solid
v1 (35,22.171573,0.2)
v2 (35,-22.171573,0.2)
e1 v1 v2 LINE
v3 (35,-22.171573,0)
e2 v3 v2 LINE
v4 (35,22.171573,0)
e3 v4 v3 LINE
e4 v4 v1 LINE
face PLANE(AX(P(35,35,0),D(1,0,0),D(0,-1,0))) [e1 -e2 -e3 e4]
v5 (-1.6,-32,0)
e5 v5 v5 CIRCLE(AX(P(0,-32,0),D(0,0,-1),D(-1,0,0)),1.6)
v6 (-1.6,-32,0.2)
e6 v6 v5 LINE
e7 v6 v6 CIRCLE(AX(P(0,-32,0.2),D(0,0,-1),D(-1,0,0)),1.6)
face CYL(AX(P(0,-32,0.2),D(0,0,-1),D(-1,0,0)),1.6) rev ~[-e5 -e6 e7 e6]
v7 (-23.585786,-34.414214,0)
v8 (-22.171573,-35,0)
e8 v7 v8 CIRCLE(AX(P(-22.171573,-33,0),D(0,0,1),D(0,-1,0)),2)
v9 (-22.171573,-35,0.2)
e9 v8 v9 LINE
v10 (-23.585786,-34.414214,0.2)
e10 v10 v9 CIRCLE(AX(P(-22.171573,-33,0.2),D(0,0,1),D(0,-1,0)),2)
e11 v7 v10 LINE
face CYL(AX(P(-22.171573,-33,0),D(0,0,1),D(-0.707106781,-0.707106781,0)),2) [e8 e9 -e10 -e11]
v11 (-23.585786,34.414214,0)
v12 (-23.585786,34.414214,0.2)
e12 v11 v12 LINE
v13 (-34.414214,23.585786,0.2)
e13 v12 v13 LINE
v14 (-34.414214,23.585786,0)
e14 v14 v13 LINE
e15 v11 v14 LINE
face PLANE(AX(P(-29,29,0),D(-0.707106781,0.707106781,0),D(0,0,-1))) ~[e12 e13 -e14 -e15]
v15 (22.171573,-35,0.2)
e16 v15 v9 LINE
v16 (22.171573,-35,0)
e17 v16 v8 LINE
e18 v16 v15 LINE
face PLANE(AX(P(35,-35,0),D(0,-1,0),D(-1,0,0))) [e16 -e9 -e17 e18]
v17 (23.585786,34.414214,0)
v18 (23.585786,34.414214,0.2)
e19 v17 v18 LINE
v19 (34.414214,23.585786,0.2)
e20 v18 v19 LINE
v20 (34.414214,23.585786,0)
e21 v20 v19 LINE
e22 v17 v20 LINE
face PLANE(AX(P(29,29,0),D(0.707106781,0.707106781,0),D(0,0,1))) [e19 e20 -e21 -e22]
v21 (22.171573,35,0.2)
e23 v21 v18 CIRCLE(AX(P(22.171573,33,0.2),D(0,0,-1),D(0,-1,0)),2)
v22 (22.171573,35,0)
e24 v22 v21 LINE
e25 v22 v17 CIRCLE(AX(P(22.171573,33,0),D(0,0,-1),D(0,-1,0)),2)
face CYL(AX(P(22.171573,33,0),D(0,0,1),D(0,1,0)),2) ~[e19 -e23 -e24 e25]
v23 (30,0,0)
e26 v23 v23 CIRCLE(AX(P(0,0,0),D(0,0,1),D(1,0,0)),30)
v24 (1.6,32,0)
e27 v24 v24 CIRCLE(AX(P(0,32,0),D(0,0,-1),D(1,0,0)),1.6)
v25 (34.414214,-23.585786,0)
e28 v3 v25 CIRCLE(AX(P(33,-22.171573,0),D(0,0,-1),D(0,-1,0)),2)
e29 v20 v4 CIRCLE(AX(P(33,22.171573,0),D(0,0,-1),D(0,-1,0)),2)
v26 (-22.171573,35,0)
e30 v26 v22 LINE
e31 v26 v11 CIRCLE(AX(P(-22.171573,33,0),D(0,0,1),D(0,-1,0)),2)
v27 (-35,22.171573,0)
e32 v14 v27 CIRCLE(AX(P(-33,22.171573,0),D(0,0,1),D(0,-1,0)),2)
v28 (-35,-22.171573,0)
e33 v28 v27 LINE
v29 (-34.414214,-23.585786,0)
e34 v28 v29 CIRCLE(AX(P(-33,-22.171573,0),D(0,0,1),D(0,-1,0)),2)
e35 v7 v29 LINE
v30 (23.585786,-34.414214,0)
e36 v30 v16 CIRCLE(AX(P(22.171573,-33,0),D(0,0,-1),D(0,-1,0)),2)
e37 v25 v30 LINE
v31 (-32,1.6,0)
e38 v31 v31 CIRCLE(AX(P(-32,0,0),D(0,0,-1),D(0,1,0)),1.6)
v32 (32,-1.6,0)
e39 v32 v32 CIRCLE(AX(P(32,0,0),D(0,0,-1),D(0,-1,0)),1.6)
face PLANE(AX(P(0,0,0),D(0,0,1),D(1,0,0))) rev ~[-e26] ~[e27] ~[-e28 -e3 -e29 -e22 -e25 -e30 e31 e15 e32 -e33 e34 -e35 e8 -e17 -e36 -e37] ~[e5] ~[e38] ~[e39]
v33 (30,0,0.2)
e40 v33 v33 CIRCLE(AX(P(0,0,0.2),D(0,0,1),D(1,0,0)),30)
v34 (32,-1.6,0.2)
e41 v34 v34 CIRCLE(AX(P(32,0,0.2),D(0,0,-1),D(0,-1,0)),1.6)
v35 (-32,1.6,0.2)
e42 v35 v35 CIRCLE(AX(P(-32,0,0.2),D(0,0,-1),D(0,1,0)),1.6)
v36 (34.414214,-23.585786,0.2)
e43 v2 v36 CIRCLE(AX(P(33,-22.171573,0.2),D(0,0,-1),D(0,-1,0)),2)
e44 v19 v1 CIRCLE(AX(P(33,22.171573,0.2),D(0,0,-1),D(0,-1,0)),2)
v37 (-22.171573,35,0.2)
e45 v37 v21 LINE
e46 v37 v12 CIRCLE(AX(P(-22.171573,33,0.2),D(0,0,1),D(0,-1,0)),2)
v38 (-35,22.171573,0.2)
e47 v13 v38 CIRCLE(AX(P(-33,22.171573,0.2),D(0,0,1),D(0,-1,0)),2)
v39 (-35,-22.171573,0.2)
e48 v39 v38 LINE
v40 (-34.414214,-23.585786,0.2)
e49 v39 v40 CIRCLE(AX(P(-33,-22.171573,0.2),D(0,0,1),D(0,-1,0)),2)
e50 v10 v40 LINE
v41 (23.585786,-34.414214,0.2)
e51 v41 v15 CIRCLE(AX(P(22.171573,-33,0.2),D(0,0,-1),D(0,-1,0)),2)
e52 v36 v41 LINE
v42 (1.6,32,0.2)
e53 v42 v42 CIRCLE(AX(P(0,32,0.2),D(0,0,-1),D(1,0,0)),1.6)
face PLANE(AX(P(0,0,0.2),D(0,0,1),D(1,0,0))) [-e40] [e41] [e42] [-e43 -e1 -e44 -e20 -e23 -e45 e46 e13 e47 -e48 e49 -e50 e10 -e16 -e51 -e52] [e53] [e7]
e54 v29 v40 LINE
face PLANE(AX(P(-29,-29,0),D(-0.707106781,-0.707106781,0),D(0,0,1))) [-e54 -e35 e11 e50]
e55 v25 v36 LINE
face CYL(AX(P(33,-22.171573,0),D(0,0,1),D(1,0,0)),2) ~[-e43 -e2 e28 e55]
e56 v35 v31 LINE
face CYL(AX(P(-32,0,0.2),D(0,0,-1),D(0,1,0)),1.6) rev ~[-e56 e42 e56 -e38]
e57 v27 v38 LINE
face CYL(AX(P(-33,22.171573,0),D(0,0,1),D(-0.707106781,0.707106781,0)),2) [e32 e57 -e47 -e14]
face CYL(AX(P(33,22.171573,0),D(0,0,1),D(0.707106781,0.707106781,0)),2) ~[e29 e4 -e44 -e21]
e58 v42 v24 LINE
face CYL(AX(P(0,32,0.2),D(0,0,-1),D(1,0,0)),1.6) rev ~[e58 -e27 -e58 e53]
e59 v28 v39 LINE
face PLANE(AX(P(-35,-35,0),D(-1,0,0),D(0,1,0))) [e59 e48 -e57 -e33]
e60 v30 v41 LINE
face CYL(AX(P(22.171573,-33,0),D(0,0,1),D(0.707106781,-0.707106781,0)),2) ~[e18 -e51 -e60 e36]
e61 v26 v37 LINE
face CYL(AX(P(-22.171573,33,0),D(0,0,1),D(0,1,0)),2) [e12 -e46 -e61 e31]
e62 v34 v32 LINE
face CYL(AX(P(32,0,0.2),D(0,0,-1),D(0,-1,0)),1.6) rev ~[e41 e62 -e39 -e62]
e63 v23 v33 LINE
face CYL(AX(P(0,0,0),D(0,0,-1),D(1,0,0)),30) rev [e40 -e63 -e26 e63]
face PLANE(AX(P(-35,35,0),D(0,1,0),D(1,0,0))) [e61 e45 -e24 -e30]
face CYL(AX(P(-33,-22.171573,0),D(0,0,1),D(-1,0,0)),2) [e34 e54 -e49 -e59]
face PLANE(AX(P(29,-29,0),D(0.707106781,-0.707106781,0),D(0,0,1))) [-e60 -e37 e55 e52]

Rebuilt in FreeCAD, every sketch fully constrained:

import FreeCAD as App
import Part
import Sketcher

V = App.Vector
Q = App.Units.Quantity


def edges_at(feature, points):
    """Names of the edges that pass closest to the given points."""
    edges = feature.Shape.Edges
    near = lambda p: min(range(len(edges)), key=lambda i: edges[i].distToShape(Part.Vertex(*p))[0])
    return sorted({f"Edge{near(p) + 1}" for p in points})

doc = App.newDocument("Part")
params = doc.addObject("Spreadsheet::Sheet", "Params")
for row, (alias, value) in enumerate([
    ("sketch1_diameter", "60 mm"),
    ("sketch1_width", "70 mm"),
    ("pad1_length", "0.2 mm"),
    ("chamfer_size", "12 mm"),
    ("fillet_radius", "2 mm"),
    ("sketch2_diameter", "3.2 mm"),
    ("hole_diameter", "3.2 mm"),
], start=1):
    params.set(f"A{row}", alias)
    params.set(f"B{row}", "=" + value)
    params.setAlias(f"B{row}", alias)

body = doc.addObject("PartDesign::Body", "Body")

# Sketch on XY plane
sketch1 = body.newObject("Sketcher::SketchObject", "Sketch")
sketch1.AttachmentSupport = (doc.getObject("XY_Plane"), [""])
sketch1.MapMode = "FlatFace"
sketch1.addGeometry(Part.LineSegment(V(35, 35, 0), V(-35, 35, 0)), False)
sketch1.addGeometry(Part.LineSegment(V(-35, 35, 0), V(-35, -35, 0)), False)
sketch1.addGeometry(Part.LineSegment(V(-35, -35, 0), V(35, -35, 0)), False)
sketch1.addGeometry(Part.LineSegment(V(35, -35, 0), V(35, 35, 0)), False)
sketch1.addGeometry(Part.Circle(V(0, 0, 0), V(0, 0, 1), 30), False)
sketch1.addConstraint(Sketcher.Constraint("Coincident", 0, 2, 1, 1))
sketch1.addConstraint(Sketcher.Constraint("Coincident", 1, 2, 2, 1))
sketch1.addConstraint(Sketcher.Constraint("Coincident", 2, 2, 3, 1))
sketch1.addConstraint(Sketcher.Constraint("Coincident", 3, 2, 0, 1))
sketch1.addConstraint(Sketcher.Constraint("Horizontal", 0))
sketch1.addConstraint(Sketcher.Constraint("Vertical", 1))
sketch1.addConstraint(Sketcher.Constraint("Horizontal", 2))
sketch1.addConstraint(Sketcher.Constraint("Vertical", 3))
sketch1.addConstraint(Sketcher.Constraint("Coincident", 4, 3, -1, 1))
sketch1.addConstraint(Sketcher.Constraint("Symmetric", 0, 2, 2, 2, -1, 1))
sketch1.addConstraint(Sketcher.Constraint("Equal", 2, 1))
sketch1.addConstraint(Sketcher.Constraint("Diameter", 4, Q("60 mm")))
sketch1.addConstraint(Sketcher.Constraint("DistanceX", 0, 2, 0, 1, Q("70 mm")))
sketch1.setExpression("Constraints[11]", "Params.sketch1_diameter")
sketch1.setExpression("Constraints[12]", "Params.sketch1_width")
pad1 = body.newObject("PartDesign::Pad", "Pad")
pad1.Profile = sketch1
pad1.setExpression("Length", "Params.pad1_length")
doc.recompute()

chamfer = body.newObject("PartDesign::Chamfer", "Chamfer")
chamfer.Base = (pad1, edges_at(pad1, [
    (35, 35, 0.1),
    (35, -35, 0.1),
    (-35, -35, 0.1),
    (-35, 35, 0.1),
]))
chamfer.setExpression("Size", "Params.chamfer_size")
doc.recompute()

fillet = body.newObject("PartDesign::Fillet", "Fillet")
fillet.Base = (chamfer, edges_at(chamfer, [
    (-23, 35, 0.1),
    (23, 35, 0.1),
    (35, 23, 0.1),
    (35, -23, 0.1),
    (23, -35, 0.1),
    (-23, -35, 0.1),
    (-35, -23, 0.1),
    (-35, 23, 0.1),
]))
fillet.setExpression("Radius", "Params.fillet_radius")

# Sketch on XY plane
sketch2 = body.newObject("Sketcher::SketchObject", "Sketch001")
sketch2.AttachmentSupport = (doc.getObject("XY_Plane"), [""])
sketch2.MapMode = "FlatFace"
sketch2.AttachmentOffset = App.Placement(V(0, 0, 0.2), App.Rotation())
sketch2.addGeometry(Part.Circle(V(32, 0, 0), V(0, 0, 1), 1.6), False)
sketch2.addConstraint(Sketcher.Constraint("PointOnObject", 0, 3, -1))
sketch2.addConstraint(Sketcher.Constraint("Diameter", 0, Q("3.2 mm")))
sketch2.addConstraint(Sketcher.Constraint("DistanceX", -1, 1, 0, 3, Q("32 mm")))
sketch2.setExpression("Constraints[1]", "Params.sketch2_diameter")
doc.recompute()
hole = body.newObject("PartDesign::Hole", "Hole")
hole.Profile = sketch2
hole.ThreadType = "None"
hole.setExpression("Diameter", "Params.hole_diameter")
hole.DepthType = "ThroughAll"
doc.recompute()

polarpattern = body.newObject("PartDesign::PolarPattern", "PolarPattern")
polarpattern.Originals = [hole]
polarpattern.Axis = (doc.getObject("Z_Axis"), [""])
polarpattern.Angle = 360
polarpattern.Occurrences = 4
body.Tip = polarpattern

doc.recompute()
